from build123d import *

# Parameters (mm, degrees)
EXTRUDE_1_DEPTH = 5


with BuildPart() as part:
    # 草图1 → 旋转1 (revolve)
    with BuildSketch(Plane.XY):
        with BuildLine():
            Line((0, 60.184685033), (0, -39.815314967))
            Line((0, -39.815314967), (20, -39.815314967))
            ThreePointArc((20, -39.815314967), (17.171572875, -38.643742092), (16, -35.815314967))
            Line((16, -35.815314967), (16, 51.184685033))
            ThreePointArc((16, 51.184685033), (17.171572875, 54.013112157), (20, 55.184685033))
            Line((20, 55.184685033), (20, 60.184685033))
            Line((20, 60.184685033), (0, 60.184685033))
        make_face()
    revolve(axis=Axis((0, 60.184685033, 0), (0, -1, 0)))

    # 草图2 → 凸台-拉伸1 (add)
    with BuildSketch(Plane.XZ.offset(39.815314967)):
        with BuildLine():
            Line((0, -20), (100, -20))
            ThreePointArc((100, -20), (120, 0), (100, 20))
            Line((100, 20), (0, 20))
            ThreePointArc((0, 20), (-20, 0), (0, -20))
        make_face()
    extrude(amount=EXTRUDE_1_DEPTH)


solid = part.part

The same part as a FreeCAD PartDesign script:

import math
import FreeCAD as App
import Part
import Sketcher

doc = App.newDocument("Part")
params = doc.addObject("Spreadsheet::Sheet", "Params")
for row, (alias, value) in enumerate([
    ("sketch1_radius", "4 mm"),
    ("sketch1_width", "20 mm"),
    ("sketch1_height", "100 mm"),
    ("sketch1_height2", "87 mm"),
    ("revolution_angle", "360 deg"),
    ("sketch2_radius", "20 mm"),
    ("sketch2_width", "100 mm"),
    ("pad1_length", "5 mm"),
], start=1):
    params.set(f"A{row}", alias)
    params.set(f"B{row}", "=" + value)
    params.setAlias(f"B{row}", alias)

body = doc.addObject("PartDesign::Body", "Body")

# Sketch on XY plane
sketch1 = doc.addObject("Sketcher::SketchObject", "Sketch")
body.addObject(sketch1)
sketch1.AttachmentSupport = (doc.XY_Plane, [""])
sketch1.MapMode = "FlatFace"
sketch1.addGeometry([
    Part.LineSegment(App.Vector(0, 60.184685, 0), App.Vector(0, -39.815315, 0)),  # 0
    Part.LineSegment(App.Vector(0, -39.815315, 0), App.Vector(20, -39.815315, 0)),  # 1
    Part.ArcOfCircle(Part.Circle(App.Vector(20, -35.815315, 0), App.Vector(0, 0, 1), 4), math.radians(180), math.radians(270)),  # 2
    Part.LineSegment(App.Vector(16, -35.815315, 0), App.Vector(16, 51.184685, 0)),  # 3
    Part.ArcOfCircle(Part.Circle(App.Vector(20, 51.184685, 0), App.Vector(0, 0, 1), 4), math.radians(90), math.radians(180)),  # 4
    Part.LineSegment(App.Vector(20, 55.184685, 0), App.Vector(20, 60.184685, 0)),  # 5
    Part.LineSegment(App.Vector(20, 60.184685, 0), App.Vector(0, 60.184685, 0)),  # 6
], False)
sketch1.addConstraint([
    Sketcher.Constraint("Coincident", 0, 2, 1, 1),
    Sketcher.Constraint("Tangent", 1, 2, 2, 2),
    Sketcher.Constraint("Tangent", 2, 1, 3, 1),
    Sketcher.Constraint("Tangent", 3, 2, 4, 2),
    Sketcher.Constraint("Coincident", 4, 1, 5, 1),
    Sketcher.Constraint("Coincident", 5, 2, 6, 1),
    Sketcher.Constraint("Coincident", 6, 2, 0, 1),
    Sketcher.Constraint("Vertical", 0),
    Sketcher.Constraint("Horizontal", 1),
    Sketcher.Constraint("Vertical", 3),
    Sketcher.Constraint("Vertical", 5),
    Sketcher.Constraint("Horizontal", 6),
    Sketcher.Constraint("Equal", 2, 4),
    Sketcher.Constraint("PointOnObject", 0, 2, -2),
    Sketcher.Constraint("Vertical", 1, 2, 4, 1),
    Sketcher.Constraint("Radius", 2, 4.0),
    Sketcher.Constraint("DistanceX", 1, 1, 1, 2, 20.0),
    Sketcher.Constraint("DistanceY", 0, 2, 0, 1, 100.0),
    Sketcher.Constraint("DistanceY", 3, 1, 3, 2, 87.0),
    Sketcher.Constraint("DistanceY", 2, 3, -1, 1, 35.815315),
])
sketch1.setExpression("Constraints[15]", "Params.sketch1_radius")
sketch1.setExpression("Constraints[16]", "Params.sketch1_width")
sketch1.setExpression("Constraints[17]", "Params.sketch1_height")
sketch1.setExpression("Constraints[18]", "Params.sketch1_height2")
revolution = doc.addObject("PartDesign::Revolution", "Revolution")
body.addObject(revolution)
revolution.Profile = sketch1
revolution.ReferenceAxis = (sketch1, ["V_Axis"])
revolution.setExpression("Angle", "Params.revolution_angle")

# Sketch on XZ plane
sketch2 = doc.addObject("Sketcher::SketchObject", "Sketch001")
body.addObject(sketch2)
sketch2.AttachmentSupport = (doc.XZ_Plane, [""])
sketch2.MapMode = "FlatFace"
sketch2.AttachmentOffset = App.Placement(App.Vector(0, 0, 39.815315), App.Rotation())
sketch2.addGeometry([
    Part.LineSegment(App.Vector(0, -20, 0), App.Vector(100, -20, 0)),
    Part.ArcOfCircle(Part.Circle(App.Vector(100, 0, 0), App.Vector(0, 0, 1), 20), math.radians(-90), math.radians(90)),
    Part.LineSegment(App.Vector(100, 20, 0), App.Vector(0, 20, 0)),
    Part.ArcOfCircle(Part.Circle(App.Vector(0, 0, 0), App.Vector(0, 0, 1), 20), math.radians(90), math.radians(270)),
], False)
sketch2.addConstraint([
    Sketcher.Constraint("Tangent", 0, 2, 1, 1),
    Sketcher.Constraint("Tangent", 1, 2, 2, 1),
    Sketcher.Constraint("Tangent", 2, 2, 3, 1),
    Sketcher.Constraint("Tangent", 3, 2, 0, 1),
    Sketcher.Constraint("Horizontal", 0),
    Sketcher.Constraint("Horizontal", 2),
    Sketcher.Constraint("Coincident", 3, 3, -1, 1),
    Sketcher.Constraint("Radius", 1, 20.0),
    Sketcher.Constraint("DistanceX", 0, 1, 0, 2, 100.0),
])
sketch2.setExpression("Constraints[7]", "Params.sketch2_radius")
sketch2.setExpression("Constraints[8]", "Params.sketch2_width")
pad1 = doc.addObject("PartDesign::Pad", "Pad")
body.addObject(pad1)
pad1.Profile = sketch2
pad1.setExpression("Length", "Params.pad1_length")

doc.recompute()
